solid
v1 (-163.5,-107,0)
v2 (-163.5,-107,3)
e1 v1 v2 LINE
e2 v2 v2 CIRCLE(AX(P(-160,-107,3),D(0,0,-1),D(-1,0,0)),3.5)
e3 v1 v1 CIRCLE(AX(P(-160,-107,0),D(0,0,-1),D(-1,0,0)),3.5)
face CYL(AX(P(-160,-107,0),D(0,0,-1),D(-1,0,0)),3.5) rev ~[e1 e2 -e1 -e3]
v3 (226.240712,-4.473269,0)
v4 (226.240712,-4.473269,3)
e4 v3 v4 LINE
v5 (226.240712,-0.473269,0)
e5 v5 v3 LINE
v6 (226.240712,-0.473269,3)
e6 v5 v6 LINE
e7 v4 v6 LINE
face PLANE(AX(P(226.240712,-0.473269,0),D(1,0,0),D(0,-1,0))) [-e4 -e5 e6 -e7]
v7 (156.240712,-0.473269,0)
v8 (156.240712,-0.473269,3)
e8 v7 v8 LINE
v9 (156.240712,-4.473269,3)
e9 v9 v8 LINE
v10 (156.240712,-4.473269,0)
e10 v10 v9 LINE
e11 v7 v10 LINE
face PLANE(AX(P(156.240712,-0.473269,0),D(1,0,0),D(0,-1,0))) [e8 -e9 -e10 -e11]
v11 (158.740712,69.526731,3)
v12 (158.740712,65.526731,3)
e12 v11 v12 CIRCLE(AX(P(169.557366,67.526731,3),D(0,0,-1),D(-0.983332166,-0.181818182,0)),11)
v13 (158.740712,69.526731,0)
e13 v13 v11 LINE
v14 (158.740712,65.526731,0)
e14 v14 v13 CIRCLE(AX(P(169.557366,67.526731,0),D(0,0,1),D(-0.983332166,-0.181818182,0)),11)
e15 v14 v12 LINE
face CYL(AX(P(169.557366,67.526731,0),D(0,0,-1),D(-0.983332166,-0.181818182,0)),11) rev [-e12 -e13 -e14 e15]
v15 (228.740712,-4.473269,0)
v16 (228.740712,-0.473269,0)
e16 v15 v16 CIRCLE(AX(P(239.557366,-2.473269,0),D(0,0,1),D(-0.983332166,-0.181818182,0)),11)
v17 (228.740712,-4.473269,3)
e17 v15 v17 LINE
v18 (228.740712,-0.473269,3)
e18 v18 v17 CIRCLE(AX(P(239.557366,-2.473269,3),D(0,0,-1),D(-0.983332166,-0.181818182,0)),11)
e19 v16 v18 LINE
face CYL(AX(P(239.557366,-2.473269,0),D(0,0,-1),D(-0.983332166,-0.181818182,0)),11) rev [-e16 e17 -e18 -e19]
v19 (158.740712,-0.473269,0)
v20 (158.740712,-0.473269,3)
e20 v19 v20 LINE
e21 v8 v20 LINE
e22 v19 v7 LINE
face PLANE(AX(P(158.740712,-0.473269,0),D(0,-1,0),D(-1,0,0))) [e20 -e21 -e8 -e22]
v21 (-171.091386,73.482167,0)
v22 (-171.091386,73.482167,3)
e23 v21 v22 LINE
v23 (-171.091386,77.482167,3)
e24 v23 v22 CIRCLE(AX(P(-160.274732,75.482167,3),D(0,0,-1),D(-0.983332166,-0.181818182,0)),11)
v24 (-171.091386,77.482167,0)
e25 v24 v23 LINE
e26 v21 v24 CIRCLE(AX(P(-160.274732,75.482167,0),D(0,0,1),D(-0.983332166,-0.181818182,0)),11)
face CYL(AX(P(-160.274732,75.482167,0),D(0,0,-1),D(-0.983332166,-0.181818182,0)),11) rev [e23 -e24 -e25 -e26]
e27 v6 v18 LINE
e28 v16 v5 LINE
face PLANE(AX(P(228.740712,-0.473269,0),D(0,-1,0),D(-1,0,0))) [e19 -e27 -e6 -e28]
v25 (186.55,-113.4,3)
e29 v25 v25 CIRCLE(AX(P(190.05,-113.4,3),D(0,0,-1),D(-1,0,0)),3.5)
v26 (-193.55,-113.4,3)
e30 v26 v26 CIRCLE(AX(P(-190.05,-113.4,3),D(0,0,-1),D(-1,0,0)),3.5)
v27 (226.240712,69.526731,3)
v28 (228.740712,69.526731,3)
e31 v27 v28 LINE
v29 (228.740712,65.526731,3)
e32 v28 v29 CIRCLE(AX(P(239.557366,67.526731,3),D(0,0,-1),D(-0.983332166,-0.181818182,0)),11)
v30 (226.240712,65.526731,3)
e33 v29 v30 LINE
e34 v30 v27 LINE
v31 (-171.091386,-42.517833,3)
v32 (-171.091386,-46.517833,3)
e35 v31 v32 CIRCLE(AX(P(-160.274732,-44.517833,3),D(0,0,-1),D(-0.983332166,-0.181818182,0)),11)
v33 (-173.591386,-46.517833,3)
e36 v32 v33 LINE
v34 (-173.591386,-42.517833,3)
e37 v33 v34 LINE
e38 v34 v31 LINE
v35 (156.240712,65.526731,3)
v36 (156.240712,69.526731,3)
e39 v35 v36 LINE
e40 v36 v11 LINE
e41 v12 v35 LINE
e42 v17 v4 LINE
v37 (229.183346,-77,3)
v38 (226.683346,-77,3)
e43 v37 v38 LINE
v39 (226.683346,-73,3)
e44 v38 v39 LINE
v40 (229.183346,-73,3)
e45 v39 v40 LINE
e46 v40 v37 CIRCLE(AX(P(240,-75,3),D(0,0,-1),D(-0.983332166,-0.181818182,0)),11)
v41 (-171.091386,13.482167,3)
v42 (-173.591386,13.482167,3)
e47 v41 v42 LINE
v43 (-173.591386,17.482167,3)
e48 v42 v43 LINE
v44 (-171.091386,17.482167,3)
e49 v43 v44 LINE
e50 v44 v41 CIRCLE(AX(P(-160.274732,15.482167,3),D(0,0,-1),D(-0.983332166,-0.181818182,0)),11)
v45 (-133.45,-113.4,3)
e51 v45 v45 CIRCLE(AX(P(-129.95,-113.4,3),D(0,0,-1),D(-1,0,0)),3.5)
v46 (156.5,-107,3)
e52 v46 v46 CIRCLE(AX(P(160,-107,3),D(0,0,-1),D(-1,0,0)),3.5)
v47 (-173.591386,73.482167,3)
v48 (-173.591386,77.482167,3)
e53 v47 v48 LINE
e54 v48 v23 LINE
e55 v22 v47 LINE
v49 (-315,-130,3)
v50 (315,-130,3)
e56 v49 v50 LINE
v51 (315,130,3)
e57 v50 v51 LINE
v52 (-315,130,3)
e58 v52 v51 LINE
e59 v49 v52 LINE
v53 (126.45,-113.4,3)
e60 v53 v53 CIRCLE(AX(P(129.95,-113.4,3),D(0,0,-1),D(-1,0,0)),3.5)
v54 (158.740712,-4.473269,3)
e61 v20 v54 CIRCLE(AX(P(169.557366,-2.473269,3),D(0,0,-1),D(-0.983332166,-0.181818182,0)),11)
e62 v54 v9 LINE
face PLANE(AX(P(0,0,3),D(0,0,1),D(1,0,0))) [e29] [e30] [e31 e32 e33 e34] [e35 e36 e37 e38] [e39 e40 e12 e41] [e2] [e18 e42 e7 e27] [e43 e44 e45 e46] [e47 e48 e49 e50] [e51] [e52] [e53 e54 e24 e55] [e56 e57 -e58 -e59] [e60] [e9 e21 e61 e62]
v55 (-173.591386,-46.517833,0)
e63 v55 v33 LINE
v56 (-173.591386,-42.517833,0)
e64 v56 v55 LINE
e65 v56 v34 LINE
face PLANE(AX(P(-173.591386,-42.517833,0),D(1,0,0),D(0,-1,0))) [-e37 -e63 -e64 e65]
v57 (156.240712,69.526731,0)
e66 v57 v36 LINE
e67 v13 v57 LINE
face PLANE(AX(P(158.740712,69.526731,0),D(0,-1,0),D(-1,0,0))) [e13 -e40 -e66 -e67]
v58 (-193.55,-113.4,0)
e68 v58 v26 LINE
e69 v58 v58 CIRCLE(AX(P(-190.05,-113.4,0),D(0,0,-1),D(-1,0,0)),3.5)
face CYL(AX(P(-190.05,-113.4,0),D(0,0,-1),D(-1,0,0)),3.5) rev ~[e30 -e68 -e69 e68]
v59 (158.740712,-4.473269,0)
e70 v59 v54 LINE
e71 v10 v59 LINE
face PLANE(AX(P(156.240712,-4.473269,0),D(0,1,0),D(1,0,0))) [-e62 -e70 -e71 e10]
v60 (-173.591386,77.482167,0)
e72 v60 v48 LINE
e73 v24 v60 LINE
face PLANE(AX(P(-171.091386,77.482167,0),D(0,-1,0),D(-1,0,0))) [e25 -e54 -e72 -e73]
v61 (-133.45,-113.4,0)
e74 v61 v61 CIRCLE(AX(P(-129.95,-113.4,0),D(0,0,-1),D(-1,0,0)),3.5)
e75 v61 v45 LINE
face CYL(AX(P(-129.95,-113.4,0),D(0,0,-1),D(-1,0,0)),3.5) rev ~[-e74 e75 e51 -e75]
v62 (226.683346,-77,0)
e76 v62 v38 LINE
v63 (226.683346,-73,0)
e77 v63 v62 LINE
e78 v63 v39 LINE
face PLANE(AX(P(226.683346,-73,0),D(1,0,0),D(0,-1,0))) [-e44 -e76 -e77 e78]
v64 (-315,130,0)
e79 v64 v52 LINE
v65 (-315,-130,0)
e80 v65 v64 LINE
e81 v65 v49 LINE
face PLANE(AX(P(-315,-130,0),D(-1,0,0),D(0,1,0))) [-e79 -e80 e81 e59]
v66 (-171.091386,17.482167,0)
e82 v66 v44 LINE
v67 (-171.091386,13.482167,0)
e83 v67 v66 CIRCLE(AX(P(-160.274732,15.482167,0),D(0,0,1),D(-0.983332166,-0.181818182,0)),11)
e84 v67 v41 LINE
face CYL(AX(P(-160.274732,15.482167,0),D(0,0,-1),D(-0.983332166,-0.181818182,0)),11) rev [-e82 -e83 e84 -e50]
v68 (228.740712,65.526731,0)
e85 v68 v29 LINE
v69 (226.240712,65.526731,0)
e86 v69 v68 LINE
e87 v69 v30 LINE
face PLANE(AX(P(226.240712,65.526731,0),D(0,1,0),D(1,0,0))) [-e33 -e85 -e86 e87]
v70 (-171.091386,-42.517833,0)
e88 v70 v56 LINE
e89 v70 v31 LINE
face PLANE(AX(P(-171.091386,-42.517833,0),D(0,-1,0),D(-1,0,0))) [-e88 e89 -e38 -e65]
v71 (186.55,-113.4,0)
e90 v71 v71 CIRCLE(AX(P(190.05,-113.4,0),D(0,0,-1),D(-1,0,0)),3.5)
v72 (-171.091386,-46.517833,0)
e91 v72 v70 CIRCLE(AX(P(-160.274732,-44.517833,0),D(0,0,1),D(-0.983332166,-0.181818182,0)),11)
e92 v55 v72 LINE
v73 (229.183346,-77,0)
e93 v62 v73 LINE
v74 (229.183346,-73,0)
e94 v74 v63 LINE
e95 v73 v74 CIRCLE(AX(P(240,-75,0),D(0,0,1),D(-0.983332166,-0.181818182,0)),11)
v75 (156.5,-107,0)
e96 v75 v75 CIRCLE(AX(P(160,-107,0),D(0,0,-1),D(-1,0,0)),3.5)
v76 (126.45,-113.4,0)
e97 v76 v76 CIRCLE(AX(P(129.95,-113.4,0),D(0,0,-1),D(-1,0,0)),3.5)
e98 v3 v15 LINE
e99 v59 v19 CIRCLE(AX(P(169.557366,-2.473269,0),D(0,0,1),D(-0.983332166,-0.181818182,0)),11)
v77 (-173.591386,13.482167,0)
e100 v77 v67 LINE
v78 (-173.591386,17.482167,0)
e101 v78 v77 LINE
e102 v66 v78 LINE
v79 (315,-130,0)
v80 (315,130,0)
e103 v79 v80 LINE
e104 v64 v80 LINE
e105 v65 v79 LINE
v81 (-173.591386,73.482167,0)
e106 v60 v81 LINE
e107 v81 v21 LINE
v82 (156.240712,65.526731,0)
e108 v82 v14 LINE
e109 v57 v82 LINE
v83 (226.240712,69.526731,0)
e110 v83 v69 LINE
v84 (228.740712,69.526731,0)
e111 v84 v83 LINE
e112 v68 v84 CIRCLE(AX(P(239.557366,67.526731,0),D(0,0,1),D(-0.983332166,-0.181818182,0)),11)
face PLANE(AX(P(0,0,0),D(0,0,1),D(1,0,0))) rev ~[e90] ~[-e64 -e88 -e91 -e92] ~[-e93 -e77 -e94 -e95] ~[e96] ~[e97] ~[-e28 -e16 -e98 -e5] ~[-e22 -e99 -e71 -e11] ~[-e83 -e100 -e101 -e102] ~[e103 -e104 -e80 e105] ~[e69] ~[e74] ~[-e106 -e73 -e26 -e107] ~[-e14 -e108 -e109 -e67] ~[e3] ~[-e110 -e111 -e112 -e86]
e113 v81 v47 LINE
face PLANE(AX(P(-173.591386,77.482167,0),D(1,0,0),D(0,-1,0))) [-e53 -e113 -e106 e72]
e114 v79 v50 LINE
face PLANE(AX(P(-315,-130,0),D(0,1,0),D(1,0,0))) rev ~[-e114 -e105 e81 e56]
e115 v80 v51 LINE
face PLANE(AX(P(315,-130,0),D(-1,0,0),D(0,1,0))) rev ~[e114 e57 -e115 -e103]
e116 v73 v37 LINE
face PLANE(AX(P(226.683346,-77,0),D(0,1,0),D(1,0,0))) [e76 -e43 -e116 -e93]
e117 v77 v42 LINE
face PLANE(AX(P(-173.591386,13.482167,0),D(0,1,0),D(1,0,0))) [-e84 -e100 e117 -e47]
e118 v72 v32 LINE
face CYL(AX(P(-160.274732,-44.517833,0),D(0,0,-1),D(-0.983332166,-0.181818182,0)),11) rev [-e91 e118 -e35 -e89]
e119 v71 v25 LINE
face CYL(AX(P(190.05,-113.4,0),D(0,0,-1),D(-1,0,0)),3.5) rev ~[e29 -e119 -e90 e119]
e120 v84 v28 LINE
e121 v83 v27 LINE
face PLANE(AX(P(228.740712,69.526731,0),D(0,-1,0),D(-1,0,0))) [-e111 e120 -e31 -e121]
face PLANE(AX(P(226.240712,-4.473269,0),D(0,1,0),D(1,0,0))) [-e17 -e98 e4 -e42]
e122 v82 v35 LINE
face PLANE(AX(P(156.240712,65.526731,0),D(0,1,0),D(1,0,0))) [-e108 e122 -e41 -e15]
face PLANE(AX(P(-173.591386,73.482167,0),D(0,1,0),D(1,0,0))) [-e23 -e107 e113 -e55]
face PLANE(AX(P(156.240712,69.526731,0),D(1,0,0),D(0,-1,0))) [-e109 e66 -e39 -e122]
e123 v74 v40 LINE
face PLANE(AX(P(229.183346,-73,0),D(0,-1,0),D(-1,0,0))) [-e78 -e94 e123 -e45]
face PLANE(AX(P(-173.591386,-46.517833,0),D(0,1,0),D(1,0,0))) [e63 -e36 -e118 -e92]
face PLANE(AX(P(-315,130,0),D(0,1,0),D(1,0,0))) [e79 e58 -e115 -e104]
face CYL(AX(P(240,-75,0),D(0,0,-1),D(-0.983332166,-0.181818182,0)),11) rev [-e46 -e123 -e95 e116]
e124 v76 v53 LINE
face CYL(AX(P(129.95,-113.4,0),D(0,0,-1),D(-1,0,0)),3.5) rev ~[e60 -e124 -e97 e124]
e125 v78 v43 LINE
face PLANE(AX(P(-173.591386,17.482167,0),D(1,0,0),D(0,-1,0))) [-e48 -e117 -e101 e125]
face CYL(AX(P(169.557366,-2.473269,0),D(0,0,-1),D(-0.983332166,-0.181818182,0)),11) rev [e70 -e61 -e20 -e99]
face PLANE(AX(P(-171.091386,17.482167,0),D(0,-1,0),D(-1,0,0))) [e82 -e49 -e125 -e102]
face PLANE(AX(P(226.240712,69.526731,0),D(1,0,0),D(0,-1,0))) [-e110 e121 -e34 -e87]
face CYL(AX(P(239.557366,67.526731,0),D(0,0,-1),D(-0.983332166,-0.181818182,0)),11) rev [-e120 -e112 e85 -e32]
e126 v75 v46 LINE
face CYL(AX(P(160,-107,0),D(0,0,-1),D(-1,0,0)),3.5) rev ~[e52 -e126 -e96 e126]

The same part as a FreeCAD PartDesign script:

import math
import FreeCAD as App
import Part
import Sketcher

V = App.Vector


def add_polygon(sketch, points):
    """Adds a closed chain of lines whose ends are joined by coincident constraints."""
    first, n = sketch.GeometryCount, len(points)
    for a, b in zip(points, points[1:] + points[:1]):
        sketch.addGeometry(Part.LineSegment(App.Vector(*a, 0), App.Vector(*b, 0)), False)
    for i in range(n):
        sketch.addConstraint(Sketcher.Constraint("Coincident", first + i, 2, first + (i + 1) % n, 1))

doc = App.newDocument("Part")
params = doc.addObject("Spreadsheet::Sheet", "Params")
for row, (alias, value) in enumerate([
    ("sketch1_width", "630 mm"),
    ("sketch1_height", "260 mm"),
    ("pad1_length", "3 mm"),
    ("sketch2_diameter", "7 mm"),
    ("sketch2_radius", "11 mm"),
    ("sketch2_height", "4 mm"),
    ("sketch2_width", "2.5 mm"),
], start=1):
    params.set(f"A{row}", alias)
    params.set(f"B{row}", "=" + value)
    params.setAlias(f"B{row}", alias)

body = doc.addObject("PartDesign::Body", "Body")

sketch1 = body.newObject("Sketcher::SketchObject", "Sketch")
sketch1.AttachmentSupport = (doc.getObject("XY_Plane"), [""])
sketch1.MapMode = "FlatFace"
add_polygon(sketch1, [(-315, 130), (-315, -130), (315, -130), (315, 130)])
sketch1.addConstraint([
    Sketcher.Constraint("Vertical", 0),
    Sketcher.Constraint("Horizontal", 1),
    Sketcher.Constraint("Vertical", 2),
    Sketcher.Constraint("Horizontal", 3),
    Sketcher.Constraint("Symmetric", 0, 2, 2, 2, -1, 1),
    Sketcher.Constraint("DistanceX", 1, 1, 1, 2, 630.0),
    Sketcher.Constraint("DistanceY", 0, 2, 0, 1, 260.0),
])
sketch1.setExpression("Constraints[9]", "Params.sketch1_width")
sketch1.setExpression("Constraints[10]", "Params.sketch1_height")
pad1 = body.newObject("PartDesign::Pad", "Pad")
pad1.Profile = sketch1
pad1.setExpression("Length", "Params.pad1_length")

sketch2 = body.newObject("Sketcher::SketchObject", "Sketch001")
sketch2.AttachmentSupport = (doc.getObject("XY_Plane"), [""])
sketch2.MapMode = "FlatFace"
sketch2.addGeometry([
    Part.LineSegment(V(226.2, -0.5, 0), V(228.7, -0.5, 0)),
    Part.ArcOfCircle(Part.Circle(V(239.6, -2.5, 0), V(0, 0, 1), 11), math.radians(-170), math.radians(170)),
    Part.LineSegment(V(228.7, -4.5, 0), V(226.2, -4.5, 0)),
    Part.LineSegment(V(226.2, -4.5, 0), V(226.2, -0.5, 0)),
    Part.LineSegment(V(226.7, -73, 0), V(229.2, -73, 0)),
    Part.ArcOfCircle(Part.Circle(V(240, -75, 0), V(0, 0, 1), 11), math.radians(-170), math.radians(170)),
    Part.LineSegment(V(229.2, -77, 0), V(226.7, -77, 0)),
    Part.LineSegment(V(226.7, -77, 0), V(226.7, -73, 0)),
    Part.LineSegment(V(156.2, -0.5, 0), V(158.7, -0.5, 0)),
    Part.ArcOfCircle(Part.Circle(V(169.6, -2.5, 0), V(0, 0, 1), 11), math.radians(-170), math.radians(170)),
    Part.LineSegment(V(158.7, -4.5, 0), V(156.2, -4.5, 0)),
    Part.LineSegment(V(156.2, -4.5, 0), V(156.2, -0.5, 0)),
    Part.LineSegment(V(156.2, 69.5, 0), V(158.7, 69.5, 0)),
    Part.ArcOfCircle(Part.Circle(V(169.6, 67.5, 0), V(0, 0, 1), 11), math.radians(-170), math.radians(170)),
    Part.LineSegment(V(158.7, 65.5, 0), V(156.2, 65.5, 0)),
    Part.LineSegment(V(156.2, 65.5, 0), V(156.2, 69.5, 0)),
    Part.LineSegment(V(226.2, 69.5, 0), V(228.7, 69.5, 0)),
    Part.ArcOfCircle(Part.Circle(V(239.6, 67.5, 0), V(0, 0, 1), 11), math.radians(-170), math.radians(170)),
    Part.LineSegment(V(228.7, 65.5, 0), V(226.2, 65.5, 0)),
    Part.LineSegment(V(226.2, 65.5, 0), V(226.2, 69.5, 0)),
    Part.LineSegment(V(-173.6, -42.5, 0), V(-171.1, -42.5, 0)),
    Part.ArcOfCircle(Part.Circle(V(-160.3, -44.5, 0), V(0, 0, 1), 11), math.radians(-170), math.radians(170)),
    Part.LineSegment(V(-171.1, -46.5, 0), V(-173.6, -46.5, 0)),
    Part.LineSegment(V(-173.6, -46.5, 0), V(-173.6, -42.5, 0)),
    Part.LineSegment(V(-173.6, 17.5, 0), V(-171.1, 17.5, 0)),
    Part.ArcOfCircle(Part.Circle(V(-160.3, 15.5, 0), V(0, 0, 1), 11), math.radians(-170), math.radians(170)),
    Part.LineSegment(V(-171.1, 13.5, 0), V(-173.6, 13.5, 0)),
    Part.LineSegment(V(-173.6, 13.5, 0), V(-173.6, 17.5, 0)),
    Part.LineSegment(V(-173.6, 77.5, 0), V(-171.1, 77.5, 0)),
    Part.ArcOfCircle(Part.Circle(V(-160.3, 75.5, 0), V(0, 0, 1), 11), math.radians(-170), math.radians(170)),
    Part.LineSegment(V(-171.1, 73.5, 0), V(-173.6, 73.5, 0)),
    Part.LineSegment(V(-173.6, 73.5, 0), V(-173.6, 77.5, 0)),
    Part.Circle(V(160, -107, 0), V(0, 0, 1), 3.5),
    Part.Circle(V(129.9, -113.4, 0), V(0, 0, 1), 3.5),
    Part.Circle(V(-129.9, -113.4, 0), V(0, 0, 1), 3.5),
    Part.Circle(V(-160, -107, 0), V(0, 0, 1), 3.5),
    Part.Circle(V(-190.1, -113.4, 0), V(0, 0, 1), 3.5),
    Part.Circle(V(190.1, -113.4, 0), V(0, 0, 1), 3.5),
], False)
sketch2.addConstraint([
    Sketcher.Constraint("Coincident", 0, 2, 1, 2),
    Sketcher.Constraint("Coincident", 1, 1, 2, 1),
    Sketcher.Constraint("Coincident", 2, 2, 3, 1),
    Sketcher.Constraint("Coincident", 3, 2, 0, 1),
    Sketcher.Constraint("Coincident", 4, 2, 5, 2),
    Sketcher.Constraint("Coincident", 5, 1, 6, 1),
    Sketcher.Constraint("Coincident", 6, 2, 7, 1),
    Sketcher.Constraint("Coincident", 7, 2, 4, 1),
    Sketcher.Constraint("Coincident", 8, 2, 9, 2),
    Sketcher.Constraint("Coincident", 9, 1, 10, 1),
    Sketcher.Constraint("Coincident", 10, 2, 11, 1),
    Sketcher.Constraint("Coincident", 11, 2, 8, 1),
    Sketcher.Constraint("Coincident", 12, 2, 13, 2),
    Sketcher.Constraint("Coincident", 13, 1, 14, 1),
    Sketcher.Constraint("Coincident", 14, 2, 15, 1),
    Sketcher.Constraint("Coincident", 15, 2, 12, 1),
    Sketcher.Constraint("Coincident", 16, 2, 17, 2),
    Sketcher.Constraint("Coincident", 17, 1, 18, 1),
    Sketcher.Constraint("Coincident", 18, 2, 19, 1),
    Sketcher.Constraint("Coincident", 19, 2, 16, 1),
    Sketcher.Constraint("Coincident", 20, 2, 21, 2),
    Sketcher.Constraint("Coincident", 21, 1, 22, 1),
    Sketcher.Constraint("Coincident", 22, 2, 23, 1),
    Sketcher.Constraint("Coincident", 23, 2, 20, 1),
    Sketcher.Constraint("Coincident", 24, 2, 25, 2),
    Sketcher.Constraint("Coincident", 25, 1, 26, 1),
    Sketcher.Constraint("Coincident", 26, 2, 27, 1),
    Sketcher.Constraint("Coincident", 27, 2, 24, 1),
    Sketcher.Constraint("Coincident", 28, 2, 29, 2),
    Sketcher.Constraint("Coincident", 29, 1, 30, 1),
    Sketcher.Constraint("Coincident", 30, 2, 31, 1),
    Sketcher.Constraint("Coincident", 31, 2, 28, 1),
    Sketcher.Constraint("Horizontal", 0),
    Sketcher.Constraint("Horizontal", 2),
    Sketcher.Constraint("Vertical", 3),
    Sketcher.Constraint("Horizontal", 4),
    Sketcher.Constraint("Horizontal", 6),
    Sketcher.Constraint("Vertical", 7),
    Sketcher.Constraint("Horizontal", 8),
    Sketcher.Constraint("Horizontal", 10),
    Sketcher.Constraint("Vertical", 11),
    Sketcher.Constraint("Horizontal", 12),
    Sketcher.Constraint("Horizontal", 14),
    Sketcher.Constraint("Vertical", 15),
    Sketcher.Constraint("Horizontal", 16),
    Sketcher.Constraint("Horizontal", 18),
    Sketcher.Constraint("Vertical", 19),
    Sketcher.Constraint("Horizontal", 20),
    Sketcher.Constraint("Horizontal", 22),
    Sketcher.Constraint("Vertical", 23),
    Sketcher.Constraint("Horizontal", 24),
    Sketcher.Constraint("Horizontal", 26),
    Sketcher.Constraint("Vertical", 27),
    Sketcher.Constraint("Horizontal", 28),
    Sketcher.Constraint("Horizontal", 30),
    Sketcher.Constraint("Vertical", 31),
    Sketcher.Constraint("Equal", 1, 5),
    Sketcher.Constraint("Equal", 5, 9),
    Sketcher.Constraint("Equal", 9, 13),
    Sketcher.Constraint("Equal", 13, 17),
    Sketcher.Constraint("Equal", 17, 21),
    Sketcher.Constraint("Equal", 21, 25),
    Sketcher.Constraint("Equal", 25, 29),
    Sketcher.Constraint("Equal", 32, 33),
    Sketcher.Constraint("Equal", 33, 34),
    Sketcher.Constraint("Equal", 34, 35),
    Sketcher.Constraint("Equal", 35, 36),
    Sketcher.Constraint("Equal", 36, 37),
    Sketcher.Constraint("Symmetric", 33, 3, 34, 3, -2),
    Sketcher.Constraint("Symmetric", 32, 3, 35, 3, -2),
    Sketcher.Constraint("Symmetric", 36, 3, 37, 3, -2),
    Sketcher.Constraint("Horizontal", 1, 3, 9, 3),
    Sketcher.Constraint("Horizontal", 13, 3, 17, 3),
    Sketcher.Constraint("Horizontal", 34, 3, 36, 3),
    Sketcher.Constraint("Horizontal", 3, 2, 8, 2),
    Sketcher.Constraint("Horizontal", 2, 2, 9, 1),
    Sketcher.Constraint("Horizontal", 15, 2, 16, 2),
    Sketcher.Constraint("Horizontal", 14, 2, 17, 1),
    Sketcher.Constraint("Vertical", 9, 3, 13, 3),
    Sketcher.Constraint("Vertical", 1, 3, 17, 3),
    Sketcher.Constraint("Vertical", 21, 3, 25, 3),
    Sketcher.Constraint("Vertical", 25, 3, 29, 3),
    Sketcher.Constraint("Vertical", 0, 2, 1, 1),
    Sketcher.Constraint("Vertical", 4, 2, 5, 1),
    Sketcher.Constraint("Vertical", 9, 1, 12, 2),
    Sketcher.Constraint("Vertical", 12, 2, 13, 1),
    Sketcher.Constraint("Vertical", 11, 2, 14, 2),
    Sketcher.Constraint("Vertical", 3, 2, 18, 2),
    Sketcher.Constraint("Vertical", 20, 2, 21, 1),
    Sketcher.Constraint("Vertical", 21, 1, 24, 2),
    Sketcher.Constraint("Vertical", 24, 2, 25, 1),
    Sketcher.Constraint("Vertical", 23, 2, 26, 2),
    Sketcher.Constraint("Vertical", 25, 1, 28, 2),
    Sketcher.Constraint("Vertical", 28, 2, 29, 1),
    Sketcher.Constraint("Vertical", 27, 2, 30, 2),
    Sketcher.Constraint("Equal", 2, 4),
    Sketcher.Constraint("Equal", 6, 8),
    Sketcher.Constraint("Equal", 18, 20),
    Sketcher.Constraint("Equal", 3, 7),
    Sketcher.Constraint("Equal", 19, 23),
    Sketcher.Constraint("Diameter", 32, 7.0),
    Sketcher.Constraint("Radius", 1, 11.0),
    Sketcher.Constraint("DistanceY", 3, 1, 3, 2, 4.0),
    Sketcher.Constraint("DistanceX", 0, 1, 0, 2, 2.5),
    Sketcher.Constraint("DistanceX", -1, 1, 5, 3, 240.0),
    Sketcher.Constraint("DistanceY", 5, 3, -1, 1, 75.0),
    Sketcher.Constraint("DistanceX", -1, 1, 32, 3, 160.0),
    Sketcher.Constraint("DistanceY", 32, 3, -1, 1, 107.0),
    Sketcher.Constraint("DistanceX", 9, 3, 1, 3, 70.0),
    Sketcher.Constraint("DistanceY", 9, 3, 13, 3, 70.0),
    Sketcher.Constraint("DistanceY", 21, 3, 25, 3, 60.0),
    Sketcher.Constraint("DistanceY", 25, 3, 29, 3, 60.0),
    Sketcher.Constraint("DistanceY", 33, 3, -1, 1, 113.4),
    Sketcher.Constraint("DistanceX", 34, 3, 33, 3, 259.9),
    Sketcher.Constraint("DistanceX", 36, 3, 34, 3, 60.1),
    Sketcher.Constraint("DistanceX", 21, 3, 9, 3, 329.832098),
    Sketcher.Constraint("DistanceY", 1, 3, -1, 1, 2.473269),
    Sketcher.Constraint("DistanceX", 4, 2, 1, 3, 10.37402),
    Sketcher.Constraint("DistanceY", 21, 3, -1, 1, 44.517833),
])
sketch2.setExpression("Constraints[100]", "Params.sketch2_diameter")
sketch2.setExpression("Constraints[101]", "Params.sketch2_radius")
sketch2.setExpression("Constraints[102]", "Params.sketch2_height")
sketch2.setExpression("Constraints[103]", "Params.sketch2_width")
pocket1 = body.newObject("PartDesign::Pocket", "Pocket")
pocket1.Profile = sketch2
pocket1.Type = "ThroughAll"
pocket1.Reversed = True

doc.recompute()
